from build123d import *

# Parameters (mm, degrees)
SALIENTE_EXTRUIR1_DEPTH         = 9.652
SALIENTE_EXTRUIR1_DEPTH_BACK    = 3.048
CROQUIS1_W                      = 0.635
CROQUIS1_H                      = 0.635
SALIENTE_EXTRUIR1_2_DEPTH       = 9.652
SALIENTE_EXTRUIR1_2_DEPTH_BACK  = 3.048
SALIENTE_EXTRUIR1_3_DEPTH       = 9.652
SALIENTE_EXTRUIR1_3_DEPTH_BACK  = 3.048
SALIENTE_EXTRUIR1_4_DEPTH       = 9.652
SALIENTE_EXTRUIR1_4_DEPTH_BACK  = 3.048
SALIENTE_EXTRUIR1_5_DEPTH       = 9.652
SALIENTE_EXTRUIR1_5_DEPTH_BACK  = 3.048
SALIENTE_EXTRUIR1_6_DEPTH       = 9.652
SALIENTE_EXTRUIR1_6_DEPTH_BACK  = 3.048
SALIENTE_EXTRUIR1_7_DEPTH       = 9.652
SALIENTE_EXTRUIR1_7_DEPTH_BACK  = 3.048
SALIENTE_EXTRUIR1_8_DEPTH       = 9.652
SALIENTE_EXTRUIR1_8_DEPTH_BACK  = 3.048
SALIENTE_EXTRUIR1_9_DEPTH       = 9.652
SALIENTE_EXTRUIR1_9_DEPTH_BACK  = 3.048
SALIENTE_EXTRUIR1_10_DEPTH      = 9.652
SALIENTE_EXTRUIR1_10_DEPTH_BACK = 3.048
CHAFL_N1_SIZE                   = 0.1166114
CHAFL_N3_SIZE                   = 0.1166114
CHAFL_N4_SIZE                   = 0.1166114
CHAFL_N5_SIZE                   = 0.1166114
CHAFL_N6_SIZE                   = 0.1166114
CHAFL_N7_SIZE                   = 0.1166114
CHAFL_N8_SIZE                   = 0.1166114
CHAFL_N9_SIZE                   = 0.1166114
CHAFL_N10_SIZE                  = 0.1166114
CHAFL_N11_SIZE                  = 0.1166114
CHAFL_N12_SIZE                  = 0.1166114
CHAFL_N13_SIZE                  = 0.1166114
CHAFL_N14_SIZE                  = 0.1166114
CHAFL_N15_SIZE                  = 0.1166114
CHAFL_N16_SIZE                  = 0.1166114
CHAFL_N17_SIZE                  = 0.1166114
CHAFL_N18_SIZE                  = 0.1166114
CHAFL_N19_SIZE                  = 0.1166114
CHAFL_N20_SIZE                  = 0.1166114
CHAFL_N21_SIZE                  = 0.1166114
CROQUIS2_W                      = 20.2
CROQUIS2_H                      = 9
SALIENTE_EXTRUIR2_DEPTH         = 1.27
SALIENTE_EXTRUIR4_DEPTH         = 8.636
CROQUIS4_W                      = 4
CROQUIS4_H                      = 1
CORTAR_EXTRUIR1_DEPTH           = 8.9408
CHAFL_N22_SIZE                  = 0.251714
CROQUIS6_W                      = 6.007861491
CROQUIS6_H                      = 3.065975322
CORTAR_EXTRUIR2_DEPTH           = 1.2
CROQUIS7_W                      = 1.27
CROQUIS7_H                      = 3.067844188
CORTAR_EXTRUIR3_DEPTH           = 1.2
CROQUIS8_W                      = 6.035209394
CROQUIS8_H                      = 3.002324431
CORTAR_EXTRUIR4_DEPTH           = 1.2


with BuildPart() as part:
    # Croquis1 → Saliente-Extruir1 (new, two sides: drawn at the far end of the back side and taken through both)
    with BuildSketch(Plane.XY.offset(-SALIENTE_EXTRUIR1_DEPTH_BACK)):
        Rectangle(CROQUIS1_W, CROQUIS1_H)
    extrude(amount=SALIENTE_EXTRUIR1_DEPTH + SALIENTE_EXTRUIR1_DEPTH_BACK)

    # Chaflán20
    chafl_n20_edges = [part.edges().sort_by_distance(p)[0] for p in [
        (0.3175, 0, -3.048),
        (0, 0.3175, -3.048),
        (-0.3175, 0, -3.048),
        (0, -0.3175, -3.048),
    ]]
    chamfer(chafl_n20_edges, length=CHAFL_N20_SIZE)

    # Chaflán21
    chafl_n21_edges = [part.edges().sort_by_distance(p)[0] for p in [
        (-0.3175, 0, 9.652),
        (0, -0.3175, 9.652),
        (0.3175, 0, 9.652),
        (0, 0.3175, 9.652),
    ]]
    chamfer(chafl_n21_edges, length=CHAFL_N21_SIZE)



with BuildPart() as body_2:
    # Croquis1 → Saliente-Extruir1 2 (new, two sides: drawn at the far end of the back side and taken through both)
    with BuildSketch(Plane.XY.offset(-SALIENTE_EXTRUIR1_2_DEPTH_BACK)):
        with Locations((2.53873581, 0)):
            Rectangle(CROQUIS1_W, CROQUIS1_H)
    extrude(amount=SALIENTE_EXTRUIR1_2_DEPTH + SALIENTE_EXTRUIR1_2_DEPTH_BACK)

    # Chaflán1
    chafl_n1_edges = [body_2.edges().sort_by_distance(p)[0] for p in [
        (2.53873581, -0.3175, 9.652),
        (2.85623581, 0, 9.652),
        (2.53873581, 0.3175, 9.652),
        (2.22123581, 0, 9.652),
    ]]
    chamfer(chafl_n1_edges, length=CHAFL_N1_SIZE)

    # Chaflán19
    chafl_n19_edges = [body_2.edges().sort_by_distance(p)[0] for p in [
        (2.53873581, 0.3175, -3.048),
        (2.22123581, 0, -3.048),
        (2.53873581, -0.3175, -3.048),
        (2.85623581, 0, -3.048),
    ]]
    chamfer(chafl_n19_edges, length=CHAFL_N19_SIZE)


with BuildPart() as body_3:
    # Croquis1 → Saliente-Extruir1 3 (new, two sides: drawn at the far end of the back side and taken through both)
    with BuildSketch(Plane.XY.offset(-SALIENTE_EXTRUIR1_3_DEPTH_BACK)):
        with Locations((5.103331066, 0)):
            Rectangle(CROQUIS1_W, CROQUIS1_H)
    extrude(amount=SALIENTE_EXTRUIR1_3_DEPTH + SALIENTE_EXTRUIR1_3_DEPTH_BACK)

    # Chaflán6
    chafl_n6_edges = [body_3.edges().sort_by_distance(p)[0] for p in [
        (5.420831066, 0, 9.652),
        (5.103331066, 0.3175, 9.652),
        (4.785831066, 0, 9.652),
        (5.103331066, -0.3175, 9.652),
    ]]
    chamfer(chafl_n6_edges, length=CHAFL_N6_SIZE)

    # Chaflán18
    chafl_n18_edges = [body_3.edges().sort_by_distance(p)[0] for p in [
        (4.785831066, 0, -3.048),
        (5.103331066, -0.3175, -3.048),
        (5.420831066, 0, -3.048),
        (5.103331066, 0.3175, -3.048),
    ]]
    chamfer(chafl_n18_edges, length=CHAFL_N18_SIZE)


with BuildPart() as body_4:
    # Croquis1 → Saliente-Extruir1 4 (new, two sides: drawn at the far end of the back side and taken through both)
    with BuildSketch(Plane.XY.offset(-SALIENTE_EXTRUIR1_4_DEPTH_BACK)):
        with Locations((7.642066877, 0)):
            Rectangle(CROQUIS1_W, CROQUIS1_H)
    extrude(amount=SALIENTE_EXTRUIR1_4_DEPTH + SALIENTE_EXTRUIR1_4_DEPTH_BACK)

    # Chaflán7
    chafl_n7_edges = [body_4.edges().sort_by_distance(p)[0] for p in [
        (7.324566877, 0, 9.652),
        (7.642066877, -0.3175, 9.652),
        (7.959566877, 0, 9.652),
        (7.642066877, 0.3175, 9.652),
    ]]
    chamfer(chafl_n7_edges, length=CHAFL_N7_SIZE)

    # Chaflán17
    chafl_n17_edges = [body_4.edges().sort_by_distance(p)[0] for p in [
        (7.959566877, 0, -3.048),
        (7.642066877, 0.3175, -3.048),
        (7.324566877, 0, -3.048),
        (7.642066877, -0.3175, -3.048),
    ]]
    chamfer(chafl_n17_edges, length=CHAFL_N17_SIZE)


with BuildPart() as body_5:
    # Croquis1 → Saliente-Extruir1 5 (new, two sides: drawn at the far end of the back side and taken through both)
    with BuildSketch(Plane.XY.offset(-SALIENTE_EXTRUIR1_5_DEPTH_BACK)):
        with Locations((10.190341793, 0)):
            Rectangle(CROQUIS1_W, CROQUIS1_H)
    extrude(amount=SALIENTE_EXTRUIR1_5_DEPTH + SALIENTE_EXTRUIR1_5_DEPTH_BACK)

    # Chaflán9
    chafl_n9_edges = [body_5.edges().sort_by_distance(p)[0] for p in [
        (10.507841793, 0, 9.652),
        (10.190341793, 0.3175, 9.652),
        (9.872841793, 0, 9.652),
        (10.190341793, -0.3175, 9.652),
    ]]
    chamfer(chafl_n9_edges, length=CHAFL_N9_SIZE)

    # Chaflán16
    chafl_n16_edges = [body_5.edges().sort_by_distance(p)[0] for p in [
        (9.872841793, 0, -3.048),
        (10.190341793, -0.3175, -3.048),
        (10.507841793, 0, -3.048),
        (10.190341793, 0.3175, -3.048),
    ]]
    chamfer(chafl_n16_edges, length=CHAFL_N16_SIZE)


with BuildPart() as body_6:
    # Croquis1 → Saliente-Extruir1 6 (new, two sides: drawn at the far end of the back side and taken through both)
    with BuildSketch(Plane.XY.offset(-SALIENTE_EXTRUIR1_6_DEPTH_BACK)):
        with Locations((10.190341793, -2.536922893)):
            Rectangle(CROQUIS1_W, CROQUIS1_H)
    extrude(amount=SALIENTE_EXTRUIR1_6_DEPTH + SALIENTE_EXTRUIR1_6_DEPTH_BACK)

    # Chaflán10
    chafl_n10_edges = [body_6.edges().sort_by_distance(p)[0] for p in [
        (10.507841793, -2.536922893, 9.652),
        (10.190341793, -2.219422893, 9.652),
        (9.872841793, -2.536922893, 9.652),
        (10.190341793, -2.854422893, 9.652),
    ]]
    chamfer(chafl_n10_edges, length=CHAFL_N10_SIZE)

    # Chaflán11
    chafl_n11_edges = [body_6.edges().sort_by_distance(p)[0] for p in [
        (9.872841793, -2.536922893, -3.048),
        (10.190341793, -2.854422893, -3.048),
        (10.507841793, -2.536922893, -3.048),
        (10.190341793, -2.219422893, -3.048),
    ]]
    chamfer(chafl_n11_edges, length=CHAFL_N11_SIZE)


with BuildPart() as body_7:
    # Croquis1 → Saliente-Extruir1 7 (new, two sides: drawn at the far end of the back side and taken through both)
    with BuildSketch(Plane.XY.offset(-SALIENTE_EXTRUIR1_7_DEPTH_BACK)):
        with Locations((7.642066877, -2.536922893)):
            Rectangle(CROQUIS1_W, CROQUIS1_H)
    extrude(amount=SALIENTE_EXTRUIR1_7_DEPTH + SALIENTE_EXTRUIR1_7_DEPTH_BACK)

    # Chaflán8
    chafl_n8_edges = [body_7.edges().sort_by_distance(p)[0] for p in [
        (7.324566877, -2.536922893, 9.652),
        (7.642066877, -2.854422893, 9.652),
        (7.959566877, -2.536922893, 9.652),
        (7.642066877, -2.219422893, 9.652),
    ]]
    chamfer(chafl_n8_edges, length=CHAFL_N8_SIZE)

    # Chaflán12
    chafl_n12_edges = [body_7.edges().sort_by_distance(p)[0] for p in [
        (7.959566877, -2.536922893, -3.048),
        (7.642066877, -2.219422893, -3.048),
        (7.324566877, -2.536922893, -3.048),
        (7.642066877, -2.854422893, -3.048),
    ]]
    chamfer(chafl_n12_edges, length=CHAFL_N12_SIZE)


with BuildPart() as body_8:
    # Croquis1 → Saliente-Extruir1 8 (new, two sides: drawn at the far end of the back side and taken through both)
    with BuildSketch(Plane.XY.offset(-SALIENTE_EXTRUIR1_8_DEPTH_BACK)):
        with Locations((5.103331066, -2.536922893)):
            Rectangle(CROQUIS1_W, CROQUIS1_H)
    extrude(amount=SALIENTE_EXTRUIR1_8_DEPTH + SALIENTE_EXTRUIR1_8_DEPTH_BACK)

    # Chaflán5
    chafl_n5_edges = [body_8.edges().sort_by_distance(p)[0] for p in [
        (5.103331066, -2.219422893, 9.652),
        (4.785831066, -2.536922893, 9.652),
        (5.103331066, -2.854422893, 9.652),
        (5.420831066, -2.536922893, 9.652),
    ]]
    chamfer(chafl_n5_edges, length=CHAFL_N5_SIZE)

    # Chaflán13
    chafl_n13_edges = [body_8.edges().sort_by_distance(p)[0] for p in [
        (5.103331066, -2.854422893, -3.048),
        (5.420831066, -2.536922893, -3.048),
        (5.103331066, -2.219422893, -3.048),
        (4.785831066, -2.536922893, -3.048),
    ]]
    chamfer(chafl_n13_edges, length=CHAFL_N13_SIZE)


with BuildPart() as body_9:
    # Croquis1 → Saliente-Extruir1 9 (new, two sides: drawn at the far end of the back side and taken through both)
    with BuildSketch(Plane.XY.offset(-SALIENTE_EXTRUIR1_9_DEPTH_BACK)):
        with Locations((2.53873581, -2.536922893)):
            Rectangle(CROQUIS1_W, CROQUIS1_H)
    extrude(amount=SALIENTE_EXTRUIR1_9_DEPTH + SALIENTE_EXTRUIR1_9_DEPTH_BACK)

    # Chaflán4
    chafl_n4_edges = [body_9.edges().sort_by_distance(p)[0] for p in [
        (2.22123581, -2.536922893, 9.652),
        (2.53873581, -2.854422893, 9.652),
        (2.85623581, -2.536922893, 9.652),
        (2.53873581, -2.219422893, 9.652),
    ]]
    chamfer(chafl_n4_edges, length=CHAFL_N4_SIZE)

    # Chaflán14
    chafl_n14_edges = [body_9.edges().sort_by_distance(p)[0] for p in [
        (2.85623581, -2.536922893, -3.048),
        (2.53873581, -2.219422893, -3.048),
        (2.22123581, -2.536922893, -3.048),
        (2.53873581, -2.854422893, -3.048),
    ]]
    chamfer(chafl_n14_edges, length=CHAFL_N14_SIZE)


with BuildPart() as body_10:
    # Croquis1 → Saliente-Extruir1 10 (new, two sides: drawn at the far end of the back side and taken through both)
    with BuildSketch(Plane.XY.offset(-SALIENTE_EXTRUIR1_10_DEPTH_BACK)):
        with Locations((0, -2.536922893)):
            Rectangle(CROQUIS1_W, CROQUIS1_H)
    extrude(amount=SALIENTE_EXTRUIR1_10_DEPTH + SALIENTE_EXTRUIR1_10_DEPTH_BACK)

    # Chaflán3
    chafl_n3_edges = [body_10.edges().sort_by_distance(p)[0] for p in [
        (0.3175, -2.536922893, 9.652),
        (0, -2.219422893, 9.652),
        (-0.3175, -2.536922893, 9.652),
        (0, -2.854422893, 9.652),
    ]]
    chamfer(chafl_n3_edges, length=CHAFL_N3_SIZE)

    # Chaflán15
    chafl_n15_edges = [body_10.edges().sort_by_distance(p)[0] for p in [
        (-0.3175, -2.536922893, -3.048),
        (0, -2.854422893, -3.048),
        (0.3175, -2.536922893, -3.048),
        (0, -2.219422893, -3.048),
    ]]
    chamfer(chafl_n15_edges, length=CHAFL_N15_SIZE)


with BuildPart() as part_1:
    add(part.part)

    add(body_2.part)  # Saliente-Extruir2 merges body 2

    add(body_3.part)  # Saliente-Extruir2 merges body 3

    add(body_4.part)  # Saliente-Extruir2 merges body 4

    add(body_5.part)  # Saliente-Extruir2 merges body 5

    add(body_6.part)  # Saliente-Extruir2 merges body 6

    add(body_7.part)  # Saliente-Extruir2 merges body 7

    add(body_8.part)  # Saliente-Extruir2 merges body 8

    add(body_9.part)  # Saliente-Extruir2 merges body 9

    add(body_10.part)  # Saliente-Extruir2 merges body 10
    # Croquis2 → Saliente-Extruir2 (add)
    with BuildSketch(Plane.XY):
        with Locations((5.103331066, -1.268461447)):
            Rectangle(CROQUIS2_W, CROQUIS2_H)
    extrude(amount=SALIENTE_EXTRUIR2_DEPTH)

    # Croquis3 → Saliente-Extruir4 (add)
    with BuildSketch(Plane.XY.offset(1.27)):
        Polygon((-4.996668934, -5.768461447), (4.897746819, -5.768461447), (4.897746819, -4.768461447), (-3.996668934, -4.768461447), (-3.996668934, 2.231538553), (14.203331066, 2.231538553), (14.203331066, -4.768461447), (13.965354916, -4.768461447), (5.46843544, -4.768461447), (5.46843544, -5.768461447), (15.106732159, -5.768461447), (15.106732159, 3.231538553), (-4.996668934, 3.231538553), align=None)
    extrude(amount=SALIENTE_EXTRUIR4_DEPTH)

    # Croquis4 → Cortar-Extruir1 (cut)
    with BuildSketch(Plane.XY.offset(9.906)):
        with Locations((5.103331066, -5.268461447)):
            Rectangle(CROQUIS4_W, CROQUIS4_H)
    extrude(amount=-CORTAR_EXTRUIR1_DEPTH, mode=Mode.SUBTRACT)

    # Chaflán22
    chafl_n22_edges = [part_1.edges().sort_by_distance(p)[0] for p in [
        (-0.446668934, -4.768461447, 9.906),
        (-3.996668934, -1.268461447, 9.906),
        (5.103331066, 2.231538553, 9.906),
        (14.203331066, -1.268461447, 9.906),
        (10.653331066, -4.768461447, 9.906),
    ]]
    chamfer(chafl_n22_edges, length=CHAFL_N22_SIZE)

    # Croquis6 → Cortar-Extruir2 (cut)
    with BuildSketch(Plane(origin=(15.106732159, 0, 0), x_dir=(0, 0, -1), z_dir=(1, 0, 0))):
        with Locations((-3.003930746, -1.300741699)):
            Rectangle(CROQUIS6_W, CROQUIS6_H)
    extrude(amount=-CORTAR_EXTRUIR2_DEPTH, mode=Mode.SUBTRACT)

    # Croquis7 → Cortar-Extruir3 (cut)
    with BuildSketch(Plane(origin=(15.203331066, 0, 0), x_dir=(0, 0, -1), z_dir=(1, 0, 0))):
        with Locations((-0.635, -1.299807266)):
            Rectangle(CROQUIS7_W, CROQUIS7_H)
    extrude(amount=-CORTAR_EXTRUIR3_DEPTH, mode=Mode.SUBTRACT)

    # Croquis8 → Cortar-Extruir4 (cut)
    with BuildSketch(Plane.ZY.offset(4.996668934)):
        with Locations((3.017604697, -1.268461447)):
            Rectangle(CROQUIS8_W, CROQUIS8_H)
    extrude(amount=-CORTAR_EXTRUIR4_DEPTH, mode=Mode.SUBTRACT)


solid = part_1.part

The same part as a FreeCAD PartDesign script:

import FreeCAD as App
import Part
import Sketcher
from FreeCAD import Vector
Q = App.Units.Quantity


def edges_at(feature, points):
    """Names of the edges that pass closest to the given points."""
    edges = feature.Shape.Edges
    near = lambda p: min(range(len(edges)), key=lambda i: edges[i].distToShape(Part.Vertex(*p))[0])
    return sorted({f"Edge{near(p) + 1}" for p in points})


def add_polygon(sketch, points):
    """Adds a closed chain of lines whose ends are joined by coincident constraints."""
    first, n = sketch.GeometryCount, len(points)
    for a, b in zip(points, points[1:] + points[:1]):
        sketch.addGeometry(Part.LineSegment(App.Vector(*a, 0), App.Vector(*b, 0)), False)
    for i in range(n):
        sketch.addConstraint(Sketcher.Constraint("Coincident", first + i, 2, first + (i + 1) % n, 1))

doc = App.newDocument("Part")
body = doc.addObject("PartDesign::Body", "Body")

sketch1 = body.newObject("Sketcher::SketchObject", "Sketch")
sketch1.AttachmentSupport = (doc.getObject("XY_Plane"), [""])
sketch1.MapMode = "FlatFace"
add_polygon(sketch1, [(-0.3, 0.3), (-0.3, -0.3), (0.3, -0.3), (0.3, 0.3)])
sketch1.addConstraint(Sketcher.Constraint("Vertical", 0))
sketch1.addConstraint(Sketcher.Constraint("Horizontal", 1))
sketch1.addConstraint(Sketcher.Constraint("Vertical", 2))
sketch1.addConstraint(Sketcher.Constraint("Horizontal", 3))
sketch1.addConstraint(Sketcher.Constraint("Symmetric", 0, 2, 2, 2, -1, 1))
sketch1.addConstraint(Sketcher.Constraint("Equal", 3, 0))
sketch1.addConstraint(Sketcher.Constraint("DistanceX", 1, 1, 1, 2, Q("0.635 mm")))
pad1 = body.newObject("PartDesign::Pad", "Pad")
pad1.Profile = sketch1
pad1.Type = "TwoLengths"
pad1.Length = 9.652
pad1.Length2 = 3.048
doc.recompute()

chamfer = body.newObject("PartDesign::Chamfer", "Chamfer")
chamfer.Base = (pad1, edges_at(pad1, [
    (0.318, 0, -3.048),
    (0, 0.318, -3.048),
    (-0.318, 0, -3.048),
    (0, -0.318, -3.048),
]))
chamfer.Size = 0.116611
doc.recompute()

chamfer2 = body.newObject("PartDesign::Chamfer", "Chamfer001")
chamfer2.Base = (chamfer, edges_at(chamfer, [
    (-0.318, 0, 9.652),
    (0, -0.318, 9.652),
    (0.318, 0, 9.652),
    (0, 0.318, 9.652),
]))
chamfer2.Size = 0.116611
body2 = doc.addObject("PartDesign::Body", "Body001")

sketch2 = body2.newObject("Sketcher::SketchObject", "Sketch001")
sketch2.AttachmentSupport = (doc.getObject("XY_Plane001"), [""])
sketch2.MapMode = "FlatFace"
add_polygon(sketch2, [(2.2, 0.3), (2.2, -0.3), (2.9, -0.3), (2.9, 0.3)])
sketch2.addConstraint(Sketcher.Constraint("Vertical", 0))
sketch2.addConstraint(Sketcher.Constraint("Horizontal", 1))
sketch2.addConstraint(Sketcher.Constraint("Vertical", 2))
sketch2.addConstraint(Sketcher.Constraint("Horizontal", 3))
sketch2.addConstraint(Sketcher.Constraint("Equal", 3, 0))
sketch2.addConstraint(Sketcher.Constraint("DistanceX", 1, 1, 1, 2, Q("0.635 mm")))
sketch2.addConstraint(Sketcher.Constraint("DistanceY", 0, 2, -1, 1, Q("0.3175 mm")))
sketch2.addConstraint(Sketcher.Constraint("DistanceX", -1, 1, 0, 2, Q("2.221236 mm")))
pad2 = body2.newObject("PartDesign::Pad", "Pad001")
pad2.Profile = sketch2
pad2.Type = "TwoLengths"
pad2.Length = 9.652
pad2.Length2 = 3.048
doc.recompute()

chamfer3 = body2.newObject("PartDesign::Chamfer", "Chamfer002")
chamfer3.Base = (pad2, edges_at(pad2, [
    (2.539, -0.318, 9.652),
    (2.856, 0, 9.652),
    (2.539, 0.318, 9.652),
    (2.221, 0, 9.652),
]))
chamfer3.Size = 0.116611
doc.recompute()

chamfer4 = body2.newObject("PartDesign::Chamfer", "Chamfer003")
chamfer4.Base = (chamfer3, edges_at(chamfer3, [
    (2.539, 0.318, -3.048),
    (2.221, 0, -3.048),
    (2.539, -0.318, -3.048),
    (2.856, 0, -3.048),
]))
chamfer4.Size = 0.116611
body3 = doc.addObject("PartDesign::Body", "Body002")

sketch3 = body3.newObject("Sketcher::SketchObject", "Sketch002")
sketch3.AttachmentSupport = (doc.getObject("XY_Plane002"), [""])
sketch3.MapMode = "FlatFace"
add_polygon(sketch3, [(4.8, 0.3), (4.8, -0.3), (5.4, -0.3), (5.4, 0.3)])
sketch3.addConstraint(Sketcher.Constraint("Vertical", 0))
sketch3.addConstraint(Sketcher.Constraint("Horizontal", 1))
sketch3.addConstraint(Sketcher.Constraint("Vertical", 2))
sketch3.addConstraint(Sketcher.Constraint("Horizontal", 3))
sketch3.addConstraint(Sketcher.Constraint("Equal", 3, 0))
sketch3.addConstraint(Sketcher.Constraint("DistanceX", 1, 1, 1, 2, Q("0.635 mm")))
sketch3.addConstraint(Sketcher.Constraint("DistanceY", 0, 2, -1, 1, Q("0.3175 mm")))
sketch3.addConstraint(Sketcher.Constraint("DistanceX", -1, 1, 0, 2, Q("4.785831 mm")))
pad3 = body3.newObject("PartDesign::Pad", "Pad002")
pad3.Profile = sketch3
pad3.Type = "TwoLengths"
pad3.Length = 9.652
pad3.Length2 = 3.048
doc.recompute()

chamfer5 = body3.newObject("PartDesign::Chamfer", "Chamfer004")
chamfer5.Base = (pad3, edges_at(pad3, [
    (5.421, 0, 9.652),
    (5.103, 0.318, 9.652),
    (4.786, 0, 9.652),
    (5.103, -0.318, 9.652),
]))
chamfer5.Size = 0.116611
doc.recompute()

chamfer6 = body3.newObject("PartDesign::Chamfer", "Chamfer005")
chamfer6.Base = (chamfer5, edges_at(chamfer5, [
    (4.786, 0, -3.048),
    (5.103, -0.318, -3.048),
    (5.421, 0, -3.048),
    (5.103, 0.318, -3.048),
]))
chamfer6.Size = 0.116611
body4 = doc.addObject("PartDesign::Body", "Body003")

sketch4 = body4.newObject("Sketcher::SketchObject", "Sketch003")
sketch4.AttachmentSupport = (doc.getObject("XY_Plane003"), [""])
sketch4.MapMode = "FlatFace"
add_polygon(sketch4, [(7.3, 0.3), (7.3, -0.3), (8, -0.3), (8, 0.3)])
sketch4.addConstraint(Sketcher.Constraint("Vertical", 0))
sketch4.addConstraint(Sketcher.Constraint("Horizontal", 1))
sketch4.addConstraint(Sketcher.Constraint("Vertical", 2))
sketch4.addConstraint(Sketcher.Constraint("Horizontal", 3))
sketch4.addConstraint(Sketcher.Constraint("Equal", 3, 0))
sketch4.addConstraint(Sketcher.Constraint("DistanceX", 1, 1, 1, 2, Q("0.635 mm")))
sketch4.addConstraint(Sketcher.Constraint("DistanceY", 0, 2, -1, 1, Q("0.3175 mm")))
sketch4.addConstraint(Sketcher.Constraint("DistanceX", -1, 1, 0, 2, Q("7.324567 mm")))
pad4 = body4.newObject("PartDesign::Pad", "Pad003")
pad4.Profile = sketch4
pad4.Type = "TwoLengths"
pad4.Length = 9.652
pad4.Length2 = 3.048
doc.recompute()

chamfer7 = body4.newObject("PartDesign::Chamfer", "Chamfer006")
chamfer7.Base = (pad4, edges_at(pad4, [
    (7.325, 0, 9.652),
    (7.642, -0.318, 9.652),
    (7.96, 0, 9.652),
    (7.642, 0.318, 9.652),
]))
chamfer7.Size = 0.116611
doc.recompute()

chamfer8 = body4.newObject("PartDesign::Chamfer", "Chamfer007")
chamfer8.Base = (chamfer7, edges_at(chamfer7, [
    (7.96, 0, -3.048),
    (7.642, 0.318, -3.048),
    (7.325, 0, -3.048),
    (7.642, -0.318, -3.048),
]))
chamfer8.Size = 0.116611
body5 = doc.addObject("PartDesign::Body", "Body004")

sketch5 = body5.newObject("Sketcher::SketchObject", "Sketch004")
sketch5.AttachmentSupport = (doc.getObject("XY_Plane004"), [""])
sketch5.MapMode = "FlatFace"
add_polygon(sketch5, [(9.9, 0.3), (9.9, -0.3), (10.5, -0.3), (10.5, 0.3)])
sketch5.addConstraint(Sketcher.Constraint("Vertical", 0))
sketch5.addConstraint(Sketcher.Constraint("Horizontal", 1))
sketch5.addConstraint(Sketcher.Constraint("Vertical", 2))
sketch5.addConstraint(Sketcher.Constraint("Horizontal", 3))
sketch5.addConstraint(Sketcher.Constraint("Equal", 3, 0))
sketch5.addConstraint(Sketcher.Constraint("DistanceX", 1, 1, 1, 2, Q("0.635 mm")))
sketch5.addConstraint(Sketcher.Constraint("DistanceY", 0, 2, -1, 1, Q("0.3175 mm")))
sketch5.addConstraint(Sketcher.Constraint("DistanceX", -1, 1, 0, 2, Q("9.872842 mm")))
pad5 = body5.newObject("PartDesign::Pad", "Pad004")
pad5.Profile = sketch5
pad5.Type = "TwoLengths"
pad5.Length = 9.652
pad5.Length2 = 3.048
doc.recompute()

chamfer9 = body5.newObject("PartDesign::Chamfer", "Chamfer008")
chamfer9.Base = (pad5, edges_at(pad5, [
    (10.508, 0, 9.652),
    (10.19, 0.318, 9.652),
    (9.873, 0, 9.652),
    (10.19, -0.318, 9.652),
]))
chamfer9.Size = 0.116611
doc.recompute()

chamfer10 = body5.newObject("PartDesign::Chamfer", "Chamfer009")
chamfer10.Base = (chamfer9, edges_at(chamfer9, [
    (9.873, 0, -3.048),
    (10.19, -0.318, -3.048),
    (10.508, 0, -3.048),
    (10.19, 0.318, -3.048),
]))
chamfer10.Size = 0.116611
body6 = doc.addObject("PartDesign::Body", "Body005")

sketch6 = body6.newObject("Sketcher::SketchObject", "Sketch005")
sketch6.AttachmentSupport = (doc.getObject("XY_Plane005"), [""])
sketch6.MapMode = "FlatFace"
add_polygon(sketch6, [(9.9, -2.2), (9.9, -2.9), (10.5, -2.9), (10.5, -2.2)])
sketch6.addConstraint(Sketcher.Constraint("Vertical", 0))
sketch6.addConstraint(Sketcher.Constraint("Horizontal", 1))
sketch6.addConstraint(Sketcher.Constraint("Vertical", 2))
sketch6.addConstraint(Sketcher.Constraint("Horizontal", 3))
sketch6.addConstraint(Sketcher.Constraint("Equal", 3, 0))
sketch6.addConstraint(Sketcher.Constraint("DistanceX", 1, 1, 1, 2, Q("0.635 mm")))
sketch6.addConstraint(Sketcher.Constraint("DistanceX", -1, 1, 0, 2, Q("9.872842 mm")))
sketch6.addConstraint(Sketcher.Constraint("DistanceY", 0, 2, -1, 1, Q("2.854423 mm")))
pad6 = body6.newObject("PartDesign::Pad", "Pad005")
pad6.Profile = sketch6
pad6.Type = "TwoLengths"
pad6.Length = 9.652
pad6.Length2 = 3.048
doc.recompute()

chamfer11 = body6.newObject("PartDesign::Chamfer", "Chamfer010")
chamfer11.Base = (pad6, edges_at(pad6, [
    (10.508, -2.537, 9.652),
    (10.19, -2.219, 9.652),
    (9.873, -2.537, 9.652),
    (10.19, -2.854, 9.652),
]))
chamfer11.Size = 0.116611
doc.recompute()

chamfer12 = body6.newObject("PartDesign::Chamfer", "Chamfer011")
chamfer12.Base = (chamfer11, edges_at(chamfer11, [
    (9.873, -2.537, -3.048),
    (10.19, -2.854, -3.048),
    (10.508, -2.537, -3.048),
    (10.19, -2.219, -3.048),
]))
chamfer12.Size = 0.116611
body7 = doc.addObject("PartDesign::Body", "Body006")

sketch7 = body7.newObject("Sketcher::SketchObject", "Sketch006")
sketch7.AttachmentSupport = (doc.getObject("XY_Plane006"), [""])
sketch7.MapMode = "FlatFace"
add_polygon(sketch7, [(7.3, -2.2), (7.3, -2.9), (8, -2.9), (8, -2.2)])
sketch7.addConstraint(Sketcher.Constraint("Vertical", 0))
sketch7.addConstraint(Sketcher.Constraint("Horizontal", 1))
sketch7.addConstraint(Sketcher.Constraint("Vertical", 2))
sketch7.addConstraint(Sketcher.Constraint("Horizontal", 3))
sketch7.addConstraint(Sketcher.Constraint("Equal", 3, 0))
sketch7.addConstraint(Sketcher.Constraint("DistanceX", 1, 1, 1, 2, Q("0.635 mm")))
sketch7.addConstraint(Sketcher.Constraint("DistanceX", -1, 1, 0, 2, Q("7.324567 mm")))
sketch7.addConstraint(Sketcher.Constraint("DistanceY", 0, 2, -1, 1, Q("2.854423 mm")))
pad7 = body7.newObject("PartDesign::Pad", "Pad006")
pad7.Profile = sketch7
pad7.Type = "TwoLengths"
pad7.Length = 9.652
pad7.Length2 = 3.048
doc.recompute()

chamfer13 = body7.newObject("PartDesign::Chamfer", "Chamfer012")
chamfer13.Base = (pad7, edges_at(pad7, [
    (7.325, -2.537, 9.652),
    (7.642, -2.854, 9.652),
    (7.96, -2.537, 9.652),
    (7.642, -2.219, 9.652),
]))
chamfer13.Size = 0.116611
doc.recompute()

chamfer14 = body7.newObject("PartDesign::Chamfer", "Chamfer013")
chamfer14.Base = (chamfer13, edges_at(chamfer13, [
    (7.96, -2.537, -3.048),
    (7.642, -2.219, -3.048),
    (7.325, -2.537, -3.048),
    (7.642, -2.854, -3.048),
]))
chamfer14.Size = 0.116611
body8 = doc.addObject("PartDesign::Body", "Body007")

sketch8 = body8.newObject("Sketcher::SketchObject", "Sketch007")
sketch8.AttachmentSupport = (doc.getObject("XY_Plane007"), [""])
sketch8.MapMode = "FlatFace"
add_polygon(sketch8, [(4.8, -2.2), (4.8, -2.9), (5.4, -2.9), (5.4, -2.2)])
sketch8.addConstraint(Sketcher.Constraint("Vertical", 0))
sketch8.addConstraint(Sketcher.Constraint("Horizontal", 1))
sketch8.addConstraint(Sketcher.Constraint("Vertical", 2))
sketch8.addConstraint(Sketcher.Constraint("Horizontal", 3))
sketch8.addConstraint(Sketcher.Constraint("Equal", 3, 0))
sketch8.addConstraint(Sketcher.Constraint("DistanceX", 1, 1, 1, 2, Q("0.635 mm")))
sketch8.addConstraint(Sketcher.Constraint("DistanceX", -1, 1, 0, 2, Q("4.785831 mm")))
sketch8.addConstraint(Sketcher.Constraint("DistanceY", 0, 2, -1, 1, Q("2.854423 mm")))
pad8 = body8.newObject("PartDesign::Pad", "Pad007")
pad8.Profile = sketch8
pad8.Type = "TwoLengths"
pad8.Length = 9.652
pad8.Length2 = 3.048
doc.recompute()

chamfer15 = body8.newObject("PartDesign::Chamfer", "Chamfer014")
chamfer15.Base = (pad8, edges_at(pad8, [
    (5.103, -2.219, 9.652),
    (4.786, -2.537, 9.652),
    (5.103, -2.854, 9.652),
    (5.421, -2.537, 9.652),
]))
chamfer15.Size = 0.116611
doc.recompute()

chamfer16 = body8.newObject("PartDesign::Chamfer", "Chamfer015")
chamfer16.Base = (chamfer15, edges_at(chamfer15, [
    (5.103, -2.854, -3.048),
    (5.421, -2.537, -3.048),
    (5.103, -2.219, -3.048),
    (4.786, -2.537, -3.048),
]))
chamfer16.Size = 0.116611
body9 = doc.addObject("PartDesign::Body", "Body008")

sketch9 = body9.newObject("Sketcher::SketchObject", "Sketch008")
sketch9.AttachmentSupport = (doc.getObject("XY_Plane008"), [""])
sketch9.MapMode = "FlatFace"
add_polygon(sketch9, [(2.2, -2.2), (2.2, -2.9), (2.9, -2.9), (2.9, -2.2)])
sketch9.addConstraint(Sketcher.Constraint("Vertical", 0))
sketch9.addConstraint(Sketcher.Constraint("Horizontal", 1))
sketch9.addConstraint(Sketcher.Constraint("Vertical", 2))
sketch9.addConstraint(Sketcher.Constraint("Horizontal", 3))
sketch9.addConstraint(Sketcher.Constraint("Equal", 3, 0))
sketch9.addConstraint(Sketcher.Constraint("DistanceX", 1, 1, 1, 2, Q("0.635 mm")))
sketch9.addConstraint(Sketcher.Constraint("DistanceX", -1, 1, 0, 2, Q("2.221236 mm")))
sketch9.addConstraint(Sketcher.Constraint("DistanceY", 0, 2, -1, 1, Q("2.854423 mm")))
pad9 = body9.newObject("PartDesign::Pad", "Pad008")
pad9.Profile = sketch9
pad9.Type = "TwoLengths"
pad9.Length = 9.652
pad9.Length2 = 3.048
doc.recompute()

chamfer17 = body9.newObject("PartDesign::Chamfer", "Chamfer016")
chamfer17.Base = (pad9, edges_at(pad9, [
    (2.221, -2.537, 9.652),
    (2.539, -2.854, 9.652),
    (2.856, -2.537, 9.652),
    (2.539, -2.219, 9.652),
]))
chamfer17.Size = 0.116611
doc.recompute()

chamfer18 = body9.newObject("PartDesign::Chamfer", "Chamfer017")
chamfer18.Base = (chamfer17, edges_at(chamfer17, [
    (2.856, -2.537, -3.048),
    (2.539, -2.219, -3.048),
    (2.221, -2.537, -3.048),
    (2.539, -2.854, -3.048),
]))
chamfer18.Size = 0.116611
body10 = doc.addObject("PartDesign::Body", "Body009")

sketch10 = body10.newObject("Sketcher::SketchObject", "Sketch009")
sketch10.AttachmentSupport = (doc.getObject("XY_Plane009"), [""])
sketch10.MapMode = "FlatFace"
add_polygon(sketch10, [(-0.3, -2.2), (-0.3, -2.9), (0.3, -2.9), (0.3, -2.2)])
sketch10.addConstraint(Sketcher.Constraint("Vertical", 0))
sketch10.addConstraint(Sketcher.Constraint("Horizontal", 1))
sketch10.addConstraint(Sketcher.Constraint("Vertical", 2))
sketch10.addConstraint(Sketcher.Constraint("Horizontal", 3))
sketch10.addConstraint(Sketcher.Constraint("Equal", 3, 0))
sketch10.addConstraint(Sketcher.Constraint("DistanceX", 1, 1, 1, 2, Q("0.635 mm")))
sketch10.addConstraint(Sketcher.Constraint("DistanceX", 0, 2, -1, 1, Q("0.3175 mm")))
sketch10.addConstraint(Sketcher.Constraint("DistanceY", 0, 2, -1, 1, Q("2.854423 mm")))
pad10 = body10.newObject("PartDesign::Pad", "Pad009")
pad10.Profile = sketch10
pad10.Type = "TwoLengths"
pad10.Length = 9.652
pad10.Length2 = 3.048
doc.recompute()

chamfer19 = body10.newObject("PartDesign::Chamfer", "Chamfer018")
chamfer19.Base = (pad10, edges_at(pad10, [
    (0.318, -2.537, 9.652),
    (0, -2.219, 9.652),
    (-0.318, -2.537, 9.652),
    (0, -2.854, 9.652),
]))
chamfer19.Size = 0.116611
doc.recompute()

chamfer20 = body10.newObject("PartDesign::Chamfer", "Chamfer019")
chamfer20.Base = (chamfer19, edges_at(chamfer19, [
    (-0.318, -2.537, -3.048),
    (0, -2.854, -3.048),
    (0.318, -2.537, -3.048),
    (0, -2.219, -3.048),
]))
chamfer20.Size = 0.116611
body.AllowCompound = True
doc.recompute()

boolean = body.newObject("PartDesign::Boolean", "Boolean")
boolean.Type = "Fuse"
boolean.addObjects([body2])
doc.recompute()

boolean2 = body.newObject("PartDesign::Boolean", "Boolean001")
boolean2.Type = "Fuse"
boolean2.addObjects([body3])
doc.recompute()

boolean3 = body.newObject("PartDesign::Boolean", "Boolean002")
boolean3.Type = "Fuse"
boolean3.addObjects([body4])
doc.recompute()

boolean4 = body.newObject("PartDesign::Boolean", "Boolean003")
boolean4.Type = "Fuse"
boolean4.addObjects([body5])
doc.recompute()

boolean5 = body.newObject("PartDesign::Boolean", "Boolean004")
boolean5.Type = "Fuse"
boolean5.addObjects([body6])
doc.recompute()

boolean6 = body.newObject("PartDesign::Boolean", "Boolean005")
boolean6.Type = "Fuse"
boolean6.addObjects([body7])
doc.recompute()

boolean7 = body.newObject("PartDesign::Boolean", "Boolean006")
boolean7.Type = "Fuse"
boolean7.addObjects([body8])
doc.recompute()

boolean8 = body.newObject("PartDesign::Boolean", "Boolean007")
boolean8.Type = "Fuse"
boolean8.addObjects([body9])
doc.recompute()

boolean9 = body.newObject("PartDesign::Boolean", "Boolean008")
boolean9.Type = "Fuse"
boolean9.addObjects([body10])

sketch11 = body.newObject("Sketcher::SketchObject", "Sketch010")
sketch11.AttachmentSupport = (doc.getObject("XY_Plane"), [""])
sketch11.MapMode = "FlatFace"
add_polygon(sketch11, [(-5, 3), (-5, -6), (15, -6), (15, 3)])
sketch11.addConstraint(Sketcher.Constraint("Vertical", 0))
sketch11.addConstraint(Sketcher.Constraint("Horizontal", 1))
sketch11.addConstraint(Sketcher.Constraint("Vertical", 2))
sketch11.addConstraint(Sketcher.Constraint("Horizontal", 3))
sketch11.addConstraint(Sketcher.Constraint("DistanceY", 0, 2, 0, 1, Q("9 mm")))
sketch11.addConstraint(Sketcher.Constraint("DistanceX", 1, 1, 1, 2, Q("20.2 mm")))
sketch11.addConstraint(Sketcher.Constraint("DistanceX", 0, 2, -1, 1, Q("4.996669 mm")))
sketch11.addConstraint(Sketcher.Constraint("DistanceY", 0, 2, -1, 1, Q("5.768461 mm")))
pad11 = body.newObject("PartDesign::Pad", "Pad010")
pad11.Profile = sketch11
pad11.Length = 1.27

sketch12 = body.newObject("Sketcher::SketchObject", "Sketch011")
sketch12.AttachmentSupport = (doc.getObject("XY_Plane"), [""])
sketch12.MapMode = "FlatFace"
sketch12.AttachmentOffset = App.Placement(Vector(0, 0, 1.27), App.Rotation())
add_polygon(sketch12, [(-5, -5.8), (4.9, -5.8), (4.9, -4.8), (-4, -4.8), (-4, 2.2), (14.2, 2.2), (14.2, -4.8), (5.5, -4.8), (5.5, -5.8), (15.1, -5.8), (15.1, 3.2), (-5, 3.2)])
sketch12.addConstraint(Sketcher.Constraint("Horizontal", 0))
sketch12.addConstraint(Sketcher.Constraint("Vertical", 1))
sketch12.addConstraint(Sketcher.Constraint("Horizontal", 2))
sketch12.addConstraint(Sketcher.Constraint("Vertical", 3))
sketch12.addConstraint(Sketcher.Constraint("Horizontal", 4))
sketch12.addConstraint(Sketcher.Constraint("Vertical", 5))
sketch12.addConstraint(Sketcher.Constraint("Horizontal", 6))
sketch12.addConstraint(Sketcher.Constraint("Vertical", 7))
sketch12.addConstraint(Sketcher.Constraint("Horizontal", 8))
sketch12.addConstraint(Sketcher.Constraint("Vertical", 9))
sketch12.addConstraint(Sketcher.Constraint("Horizontal", 10))
sketch12.addConstraint(Sketcher.Constraint("Vertical", 11))
sketch12.addConstraint(Sketcher.Constraint("Horizontal", 2, 2, 5, 2))
sketch12.addConstraint(Sketcher.Constraint("Horizontal", 0, 2, 7, 2))
sketch12.addConstraint(Sketcher.Constraint("DistanceY", 1, 1, 1, 2, Q("1 mm")))
sketch12.addConstraint(Sketcher.Constraint("DistanceY", 3, 1, 3, 2, Q("7 mm")))
sketch12.addConstraint(Sketcher.Constraint("DistanceY", 9, 1, 9, 2, Q("9 mm")))
sketch12.addConstraint(Sketcher.Constraint("DistanceX", 4, 1, 4, 2, Q("18.2 mm")))
sketch12.addConstraint(Sketcher.Constraint("DistanceX", 10, 2, 3, 2, Q("1 mm")))
sketch12.addConstraint(Sketcher.Constraint("DistanceX", 10, 2, 10, 1, Q("20.103401 mm")))
sketch12.addConstraint(Sketcher.Constraint("DistanceX", 0, 1, 0, 2, Q("9.894416 mm")))
sketch12.addConstraint(Sketcher.Constraint("DistanceX", 6, 2, 6, 1, Q("8.734896 mm")))
sketch12.addConstraint(Sketcher.Constraint("DistanceY", 0, 2, -1, 1, Q("5.768461 mm")))
sketch12.addConstraint(Sketcher.Constraint("DistanceX", 2, 2, -1, 1, Q("3.996669 mm")))
pad12 = body.newObject("PartDesign::Pad", "Pad011")
pad12.Profile = sketch12
pad12.Length = 8.636

sketch13 = body.newObject("Sketcher::SketchObject", "Sketch012")
sketch13.AttachmentSupport = (doc.getObject("XY_Plane"), [""])
sketch13.MapMode = "FlatFace"
sketch13.AttachmentOffset = App.Placement(Vector(0, 0, 9.906), App.Rotation())
add_polygon(sketch13, [(3.1, -4.8), (3.1, -5.8), (7.1, -5.8), (7.1, -4.8)])
sketch13.addConstraint(Sketcher.Constraint("Vertical", 0))
sketch13.addConstraint(Sketcher.Constraint("Horizontal", 1))
sketch13.addConstraint(Sketcher.Constraint("Vertical", 2))
sketch13.addConstraint(Sketcher.Constraint("Horizontal", 3))
sketch13.addConstraint(Sketcher.Constraint("DistanceX", 1, 1, 1, 2, Q("4 mm")))
sketch13.addConstraint(Sketcher.Constraint("DistanceY", 0, 2, 0, 1, Q("1 mm")))
sketch13.addConstraint(Sketcher.Constraint("DistanceX", -1, 1, 0, 2, Q("3.103331 mm")))
sketch13.addConstraint(Sketcher.Constraint("DistanceY", 0, 2, -1, 1, Q("5.768461 mm")))
pocket1 = body.newObject("PartDesign::Pocket", "Pocket")
pocket1.Profile = sketch13
pocket1.Length = 8.9408
doc.recompute()

chamfer21 = body.newObject("PartDesign::Chamfer", "Chamfer020")
chamfer21.Base = (pocket1, edges_at(pocket1, [
    (-0.447, -4.768, 9.906),
    (-3.997, -1.268, 9.906),
    (5.103, 2.232, 9.906),
    (14.203, -1.268, 9.906),
    (10.653, -4.768, 9.906),
]))
chamfer21.Size = 0.251714

sketch14 = body.newObject("Sketcher::SketchObject", "Sketch013")
sketch14.AttachmentSupport = (doc.getObject("YZ_Plane"), [""])
sketch14.MapMode = "FlatFace"
sketch14.AttachmentOffset = App.Placement(Vector(0, 0, 15.106732), App.Rotation())
add_polygon(sketch14, [(0.2, 6), (-2.8, 6), (-2.8, 0), (0.2, 0)])
sketch14.addConstraint(Sketcher.Constraint("Horizontal", 0))
sketch14.addConstraint(Sketcher.Constraint("Vertical", 1))
sketch14.addConstraint(Sketcher.Constraint("Horizontal", 2))
sketch14.addConstraint(Sketcher.Constraint("Vertical", 3))
sketch14.addConstraint(Sketcher.Constraint("PointOnObject", 1, 2, -1))
sketch14.addConstraint(Sketcher.Constraint("DistanceY", 1, 2, 1, 1, Q("6.007861 mm")))
sketch14.addConstraint(Sketcher.Constraint("DistanceX", 0, 2, 0, 1, Q("3.065975 mm")))
sketch14.addConstraint(Sketcher.Constraint("DistanceX", 0, 2, -1, 1, Q("2.833729 mm")))
pocket2 = body.newObject("PartDesign::Pocket", "Pocket001")
pocket2.Profile = sketch14
pocket2.Length = 1.2

sketch15 = body.newObject("Sketcher::SketchObject", "Sketch014")
sketch15.AttachmentSupport = (doc.getObject("YZ_Plane"), [""])
sketch15.MapMode = "FlatFace"
sketch15.AttachmentOffset = App.Placement(Vector(0, 0, 15.203331), App.Rotation())
add_polygon(sketch15, [(0.2, 1.3), (-2.8, 1.3), (-2.8, 0), (0.2, 0)])
sketch15.addConstraint(Sketcher.Constraint("Horizontal", 0))
sketch15.addConstraint(Sketcher.Constraint("Vertical", 1))
sketch15.addConstraint(Sketcher.Constraint("Horizontal", 2))
sketch15.addConstraint(Sketcher.Constraint("Vertical", 3))
sketch15.addConstraint(Sketcher.Constraint("PointOnObject", 1, 2, -1))
sketch15.addConstraint(Sketcher.Constraint("DistanceY", 1, 2, 1, 1, Q("1.27 mm")))
sketch15.addConstraint(Sketcher.Constraint("DistanceX", 0, 2, 0, 1, Q("3.067844 mm")))
sketch15.addConstraint(Sketcher.Constraint("DistanceX", 0, 2, -1, 1, Q("2.833729 mm")))
pocket3 = body.newObject("PartDesign::Pocket", "Pocket002")
pocket3.Profile = sketch15
pocket3.Length = 1.2

sketch16 = body.newObject("Sketcher::SketchObject", "Sketch015")
sketch16.AttachmentSupport = (doc.getObject("YZ_Plane"), [""])
sketch16.MapMode = "FlatFace"
sketch16.AttachmentOffset = App.Placement(Vector(0, 0, -4.996669), App.Rotation())
add_polygon(sketch16, [(0.2, 0), (-2.8, 0), (-2.8, 6), (0.2, 6)])
sketch16.addConstraint(Sketcher.Constraint("Horizontal", 0))
sketch16.addConstraint(Sketcher.Constraint("Vertical", 1))
sketch16.addConstraint(Sketcher.Constraint("Horizontal", 2))
sketch16.addConstraint(Sketcher.Constraint("Vertical", 3))
sketch16.addConstraint(Sketcher.Constraint("PointOnObject", 0, 2, -1))
sketch16.addConstraint(Sketcher.Constraint("DistanceY", 1, 1, 1, 2, Q("6.035209 mm")))
sketch16.addConstraint(Sketcher.Constraint("DistanceX", -1, 1, 2, 2, Q("0.232701 mm")))
sketch16.addConstraint(Sketcher.Constraint("DistanceX", 0, 2, 0, 1, Q("3.002324 mm")))
pocket4 = body.newObject("PartDesign::Pocket", "Pocket003")
pocket4.Profile = sketch16
pocket4.Length = 1.2
pocket4.Reversed = True

doc.recompute()
